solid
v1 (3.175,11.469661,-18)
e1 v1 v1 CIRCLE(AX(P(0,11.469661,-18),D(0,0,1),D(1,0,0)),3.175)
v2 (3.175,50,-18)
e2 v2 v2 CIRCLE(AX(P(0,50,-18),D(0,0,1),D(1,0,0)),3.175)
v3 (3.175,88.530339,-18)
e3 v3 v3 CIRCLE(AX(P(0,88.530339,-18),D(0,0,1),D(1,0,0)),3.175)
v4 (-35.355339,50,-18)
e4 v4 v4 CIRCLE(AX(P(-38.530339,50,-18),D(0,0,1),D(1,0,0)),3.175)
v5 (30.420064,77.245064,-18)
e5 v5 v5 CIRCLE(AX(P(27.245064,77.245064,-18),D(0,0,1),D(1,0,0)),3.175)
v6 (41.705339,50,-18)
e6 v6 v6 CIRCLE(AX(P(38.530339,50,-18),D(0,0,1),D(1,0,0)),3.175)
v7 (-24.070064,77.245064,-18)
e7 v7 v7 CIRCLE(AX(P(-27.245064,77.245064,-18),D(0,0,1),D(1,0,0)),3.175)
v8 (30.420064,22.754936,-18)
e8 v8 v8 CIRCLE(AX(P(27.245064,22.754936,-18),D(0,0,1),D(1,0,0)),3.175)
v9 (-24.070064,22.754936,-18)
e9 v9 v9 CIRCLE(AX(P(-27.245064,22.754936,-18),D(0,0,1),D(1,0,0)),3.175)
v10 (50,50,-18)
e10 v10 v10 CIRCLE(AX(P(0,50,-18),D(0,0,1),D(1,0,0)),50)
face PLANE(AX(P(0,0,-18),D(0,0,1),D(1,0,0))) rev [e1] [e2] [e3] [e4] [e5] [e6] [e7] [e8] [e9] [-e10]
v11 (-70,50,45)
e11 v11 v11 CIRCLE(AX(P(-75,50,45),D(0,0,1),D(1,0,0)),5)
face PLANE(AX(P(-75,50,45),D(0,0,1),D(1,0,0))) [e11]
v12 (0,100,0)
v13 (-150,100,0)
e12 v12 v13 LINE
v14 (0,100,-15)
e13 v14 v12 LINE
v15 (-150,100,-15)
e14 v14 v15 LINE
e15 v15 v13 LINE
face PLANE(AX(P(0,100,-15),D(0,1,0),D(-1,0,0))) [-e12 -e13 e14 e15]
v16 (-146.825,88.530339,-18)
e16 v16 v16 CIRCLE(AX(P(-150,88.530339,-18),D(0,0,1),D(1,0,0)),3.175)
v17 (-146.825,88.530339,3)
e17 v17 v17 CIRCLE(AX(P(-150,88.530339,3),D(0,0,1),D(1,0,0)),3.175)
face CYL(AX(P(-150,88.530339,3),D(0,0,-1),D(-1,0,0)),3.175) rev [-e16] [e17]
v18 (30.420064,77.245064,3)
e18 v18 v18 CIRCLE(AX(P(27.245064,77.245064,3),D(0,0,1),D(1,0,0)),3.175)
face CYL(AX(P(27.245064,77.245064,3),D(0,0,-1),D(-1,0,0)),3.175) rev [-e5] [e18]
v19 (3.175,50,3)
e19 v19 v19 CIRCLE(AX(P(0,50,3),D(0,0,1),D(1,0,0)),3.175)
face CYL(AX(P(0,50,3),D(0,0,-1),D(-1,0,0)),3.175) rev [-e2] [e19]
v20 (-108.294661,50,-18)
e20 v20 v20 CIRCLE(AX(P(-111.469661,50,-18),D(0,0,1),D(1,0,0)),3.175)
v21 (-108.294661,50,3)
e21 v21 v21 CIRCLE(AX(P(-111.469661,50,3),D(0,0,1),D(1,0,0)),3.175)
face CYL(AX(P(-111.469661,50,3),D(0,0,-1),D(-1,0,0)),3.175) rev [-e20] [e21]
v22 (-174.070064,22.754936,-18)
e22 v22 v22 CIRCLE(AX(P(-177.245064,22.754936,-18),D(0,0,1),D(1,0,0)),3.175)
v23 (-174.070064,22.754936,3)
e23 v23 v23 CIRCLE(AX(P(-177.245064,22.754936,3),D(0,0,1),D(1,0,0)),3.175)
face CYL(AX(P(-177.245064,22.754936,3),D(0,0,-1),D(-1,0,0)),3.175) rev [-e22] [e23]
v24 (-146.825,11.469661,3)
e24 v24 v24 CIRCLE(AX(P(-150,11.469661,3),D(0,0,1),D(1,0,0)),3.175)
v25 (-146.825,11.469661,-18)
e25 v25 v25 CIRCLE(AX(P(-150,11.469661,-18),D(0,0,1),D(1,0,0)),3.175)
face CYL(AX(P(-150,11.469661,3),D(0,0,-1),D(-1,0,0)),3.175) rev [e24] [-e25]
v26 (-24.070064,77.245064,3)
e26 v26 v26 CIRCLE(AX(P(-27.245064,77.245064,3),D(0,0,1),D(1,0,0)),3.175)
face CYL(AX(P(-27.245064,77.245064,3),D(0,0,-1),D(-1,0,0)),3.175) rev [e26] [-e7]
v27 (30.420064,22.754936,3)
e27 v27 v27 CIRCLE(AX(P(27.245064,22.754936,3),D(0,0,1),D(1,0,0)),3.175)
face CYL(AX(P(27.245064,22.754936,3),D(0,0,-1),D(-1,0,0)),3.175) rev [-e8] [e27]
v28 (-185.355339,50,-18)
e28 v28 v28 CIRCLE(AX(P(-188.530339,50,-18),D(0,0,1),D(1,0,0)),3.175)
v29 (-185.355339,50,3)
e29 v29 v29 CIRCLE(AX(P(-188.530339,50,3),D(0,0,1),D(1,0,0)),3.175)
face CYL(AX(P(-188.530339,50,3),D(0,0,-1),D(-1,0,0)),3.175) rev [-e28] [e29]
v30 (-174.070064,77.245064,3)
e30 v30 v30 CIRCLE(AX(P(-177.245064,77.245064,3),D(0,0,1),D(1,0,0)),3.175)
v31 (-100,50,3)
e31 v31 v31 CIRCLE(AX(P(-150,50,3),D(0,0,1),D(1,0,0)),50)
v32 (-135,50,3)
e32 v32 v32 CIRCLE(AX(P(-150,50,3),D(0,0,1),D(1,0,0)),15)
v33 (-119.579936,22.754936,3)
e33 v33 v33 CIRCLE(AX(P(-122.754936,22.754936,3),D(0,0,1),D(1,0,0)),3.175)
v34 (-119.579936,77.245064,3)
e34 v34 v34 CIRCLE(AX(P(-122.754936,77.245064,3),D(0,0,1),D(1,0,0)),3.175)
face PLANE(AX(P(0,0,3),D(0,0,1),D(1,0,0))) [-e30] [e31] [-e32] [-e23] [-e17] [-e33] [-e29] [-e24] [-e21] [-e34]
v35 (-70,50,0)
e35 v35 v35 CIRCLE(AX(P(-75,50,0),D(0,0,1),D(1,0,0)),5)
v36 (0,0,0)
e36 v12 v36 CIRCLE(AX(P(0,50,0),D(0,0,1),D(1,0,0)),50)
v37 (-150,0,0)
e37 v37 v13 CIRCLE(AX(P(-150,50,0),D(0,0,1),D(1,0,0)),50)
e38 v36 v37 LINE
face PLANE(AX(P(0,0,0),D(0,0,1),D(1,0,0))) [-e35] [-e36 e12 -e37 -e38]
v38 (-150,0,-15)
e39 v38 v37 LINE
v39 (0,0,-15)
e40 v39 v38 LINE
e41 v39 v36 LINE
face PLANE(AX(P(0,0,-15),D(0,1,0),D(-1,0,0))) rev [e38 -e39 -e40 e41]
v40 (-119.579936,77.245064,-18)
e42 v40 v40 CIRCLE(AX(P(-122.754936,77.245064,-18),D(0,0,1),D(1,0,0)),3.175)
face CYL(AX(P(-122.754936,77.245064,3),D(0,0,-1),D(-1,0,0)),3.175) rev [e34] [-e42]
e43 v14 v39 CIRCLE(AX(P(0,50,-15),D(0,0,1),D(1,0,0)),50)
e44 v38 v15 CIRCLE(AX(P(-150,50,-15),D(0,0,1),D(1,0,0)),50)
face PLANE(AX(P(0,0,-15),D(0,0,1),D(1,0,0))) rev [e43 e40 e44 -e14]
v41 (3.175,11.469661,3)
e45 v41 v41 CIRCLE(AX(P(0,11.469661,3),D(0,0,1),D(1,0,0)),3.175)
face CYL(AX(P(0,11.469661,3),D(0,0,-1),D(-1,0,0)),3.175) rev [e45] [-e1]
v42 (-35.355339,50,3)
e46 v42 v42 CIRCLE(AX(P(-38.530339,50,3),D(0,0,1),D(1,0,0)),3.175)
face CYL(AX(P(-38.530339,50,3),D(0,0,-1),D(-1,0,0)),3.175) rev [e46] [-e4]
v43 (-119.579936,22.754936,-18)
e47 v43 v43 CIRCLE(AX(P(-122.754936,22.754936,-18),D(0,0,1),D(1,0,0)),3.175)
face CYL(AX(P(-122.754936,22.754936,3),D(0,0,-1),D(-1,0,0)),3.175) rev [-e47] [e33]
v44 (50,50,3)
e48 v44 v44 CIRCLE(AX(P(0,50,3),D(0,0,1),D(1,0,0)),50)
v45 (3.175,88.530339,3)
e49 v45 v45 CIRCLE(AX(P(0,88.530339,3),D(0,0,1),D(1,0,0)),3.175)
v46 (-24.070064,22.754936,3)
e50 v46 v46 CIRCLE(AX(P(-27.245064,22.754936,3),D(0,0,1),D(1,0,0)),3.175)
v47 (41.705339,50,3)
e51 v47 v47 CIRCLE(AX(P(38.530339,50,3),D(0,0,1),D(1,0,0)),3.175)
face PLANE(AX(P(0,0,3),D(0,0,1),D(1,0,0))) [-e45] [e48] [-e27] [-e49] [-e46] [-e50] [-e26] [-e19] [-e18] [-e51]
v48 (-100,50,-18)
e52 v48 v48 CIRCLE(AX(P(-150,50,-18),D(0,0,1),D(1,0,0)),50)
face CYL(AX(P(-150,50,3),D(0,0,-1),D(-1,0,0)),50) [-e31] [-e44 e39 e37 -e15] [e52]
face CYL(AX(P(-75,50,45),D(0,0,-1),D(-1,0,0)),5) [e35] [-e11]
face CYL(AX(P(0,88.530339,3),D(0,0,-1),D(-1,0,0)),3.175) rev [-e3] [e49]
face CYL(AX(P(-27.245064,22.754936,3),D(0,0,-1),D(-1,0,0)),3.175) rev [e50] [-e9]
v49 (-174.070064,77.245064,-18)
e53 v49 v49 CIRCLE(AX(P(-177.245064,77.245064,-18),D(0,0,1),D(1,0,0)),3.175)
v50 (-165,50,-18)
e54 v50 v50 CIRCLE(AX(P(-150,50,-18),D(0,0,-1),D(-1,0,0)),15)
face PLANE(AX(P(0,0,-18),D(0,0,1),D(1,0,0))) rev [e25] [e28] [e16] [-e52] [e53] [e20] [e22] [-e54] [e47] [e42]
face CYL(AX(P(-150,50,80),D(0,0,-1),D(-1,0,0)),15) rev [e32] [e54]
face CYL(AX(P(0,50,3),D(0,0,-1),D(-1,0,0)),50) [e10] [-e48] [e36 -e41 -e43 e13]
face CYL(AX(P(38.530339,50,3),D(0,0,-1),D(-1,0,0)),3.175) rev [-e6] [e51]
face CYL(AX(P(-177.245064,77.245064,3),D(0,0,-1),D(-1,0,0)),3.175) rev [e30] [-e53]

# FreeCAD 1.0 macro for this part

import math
import FreeCAD as App
import Part
import Sketcher


def add_polygon(sketch, points):
    """Adds a closed chain of lines whose ends are joined by coincident constraints."""
    first, n = sketch.GeometryCount, len(points)
    for a, b in zip(points, points[1:] + points[:1]):
        sketch.addGeometry(Part.LineSegment(App.Vector(*a, 0), App.Vector(*b, 0)), False)
    for i in range(n):
        sketch.addConstraint(Sketcher.Constraint("Coincident", first + i, 2, first + (i + 1) % n, 1))

doc = App.newDocument("Part")
body = doc.addObject("PartDesign::Body", "Body")

sketch1 = doc.addObject("Sketcher::SketchObject", "Sketch")
body.addObject(sketch1)
sketch1.AttachmentSupport = (doc.XY_Plane, [""])
sketch1.MapMode = "FlatFace"
add_polygon(sketch1, [(-150, 100), (-150, 0), (0, 0), (0, 100)])
sketch1.addConstraint([
    Sketcher.Constraint("Vertical", 0),
    Sketcher.Constraint("Horizontal", 1),
    Sketcher.Constraint("Vertical", 2),
    Sketcher.Constraint("Horizontal", 3),
    Sketcher.Constraint("Coincident", 1, 2, -1, 1),
    Sketcher.Constraint("DistanceX", 1, 1, 1, 2, 150.0),
    Sketcher.Constraint("DistanceY", 0, 2, 0, 1, 100.0),
])
pad1 = doc.addObject("PartDesign::Pad", "Pad")
body.addObject(pad1)
pad1.Profile = sketch1
pad1.Length = 15
pad1.Reversed = True

sketch2 = doc.addObject("Sketcher::SketchObject", "Sketch001")
body.addObject(sketch2)
sketch2.AttachmentSupport = (doc.XY_Plane, [""])
sketch2.MapMode = "FlatFace"
sketch2.addGeometry(Part.Circle(App.Vector(-75, 50, 0), App.Vector(0, 0, 1), 5), False)
sketch2.addConstraint([
    Sketcher.Constraint("Diameter", 0, 10.0),
    Sketcher.Constraint("DistanceX", 0, 3, -1, 1, 75.0),
    Sketcher.Constraint("DistanceY", -1, 1, 0, 3, 50.0),
])
pad2 = doc.addObject("PartDesign::Pad", "Pad001")
body.addObject(pad2)
pad2.Profile = sketch2
pad2.Length = 45

sketch3 = doc.addObject("Sketcher::SketchObject", "Sketch002")
body.addObject(sketch3)
sketch3.AttachmentSupport = (doc.XY_Plane, [""])
sketch3.MapMode = "FlatFace"
sketch3.addGeometry([
    Part.Circle(App.Vector(0, 50, 0), App.Vector(0, 0, 1), 50),
    Part.Circle(App.Vector(-27.2, 22.8, 0), App.Vector(0, 0, 1), 3.2),
    Part.Circle(App.Vector(0, 11.5, 0), App.Vector(0, 0, 1), 3.2),
    Part.Circle(App.Vector(27.2, 22.8, 0), App.Vector(0, 0, 1), 3.2),
    Part.Circle(App.Vector(-38.5, 50, 0), App.Vector(0, 0, 1), 3.2),
    Part.Circle(App.Vector(-27.2, 77.2, 0), App.Vector(0, 0, 1), 3.2),
    Part.ArcOfCircle(Part.Circle(App.Vector(0, 50, 0), App.Vector(0, 0, 1), 25), math.radians(-90), math.radians(180)),
    Part.LineSegment(App.Vector(0, 25, 0), App.Vector(0, 46.8, 0)),
    Part.ArcOfCircle(Part.Circle(App.Vector(0, 50, 0), App.Vector(0, 0, 1), 3.2), math.radians(-180), math.radians(-90)),
    Part.LineSegment(App.Vector(-3.2, 50, 0), App.Vector(-25, 50, 0)),
    Part.Circle(App.Vector(38.5, 50, 0), App.Vector(0, 0, 1), 3.2),
    Part.Circle(App.Vector(0, 88.5, 0), App.Vector(0, 0, 1), 3.2),
    Part.Circle(App.Vector(27.2, 77.2, 0), App.Vector(0, 0, 1), 3.2),
], False)
sketch3.addConstraint([
    Sketcher.Constraint("Coincident", 6, 1, 7, 1),
    Sketcher.Constraint("Coincident", 7, 2, 8, 2),
    Sketcher.Constraint("Coincident", 8, 1, 9, 1),
    Sketcher.Constraint("Coincident", 9, 2, 6, 2),
    Sketcher.Constraint("Vertical", 7),
    Sketcher.Constraint("Horizontal", 9),
    Sketcher.Constraint("Coincident", 6, 3, 0, 3),
    Sketcher.Constraint("Coincident", 8, 3, 0, 3),
    Sketcher.Constraint("Equal", 1, 2),
    Sketcher.Constraint("Equal", 2, 3),
    Sketcher.Constraint("Equal", 3, 4),
    Sketcher.Constraint("Equal", 4, 5),
    Sketcher.Constraint("Equal", 5, 8),
    Sketcher.Constraint("Equal", 8, 10),
    Sketcher.Constraint("Equal", 10, 11),
    Sketcher.Constraint("Equal", 11, 12),
    Sketcher.Constraint("Symmetric", 1, 3, 3, 3, -2),
    Sketcher.Constraint("Symmetric", 4, 3, 10, 3, -2),
    Sketcher.Constraint("Symmetric", 5, 3, 12, 3, -2),
    Sketcher.Constraint("PointOnObject", 0, 3, -2),
    Sketcher.Constraint("PointOnObject", 2, 3, -2),
    Sketcher.Constraint("PointOnObject", 11, 3, -2),
    Sketcher.Constraint("PointOnObject", 6, 1, -2),
    Sketcher.Constraint("Horizontal", 0, 3, 4, 3),
    Sketcher.Constraint("Horizontal", 10, 3, 8, 1),
    Sketcher.Constraint("Vertical", 1, 3, 5, 3),
    Sketcher.Constraint("Diameter", 0, 100.0),
    Sketcher.Constraint("Radius", 6, 25.0),
    Sketcher.Constraint("Diameter", 1, 6.35),
    Sketcher.Constraint("DistanceY", -1, 1, 0, 3, 50.0),
    Sketcher.Constraint("DistanceY", -1, 1, 2, 3, 11.469661),
    Sketcher.Constraint("DistanceX", 4, 3, -1, 1, 38.530339),
    Sketcher.Constraint("DistanceY", -1, 1, 11, 3, 88.530339),
    Sketcher.Constraint("DistanceX", 1, 3, 3, 3, 54.490128),
    Sketcher.Constraint("DistanceY", 1, 3, 5, 3, 54.490128),
    Sketcher.Constraint("DistanceY", -1, 1, 1, 3, 22.754936),
])
pad3 = doc.addObject("PartDesign::Pad", "Pad002")
body.addObject(pad3)
pad3.Profile = sketch3
pad3.Length = 3

sketch4 = doc.addObject("Sketcher::SketchObject", "Sketch003")
body.addObject(sketch4)
sketch4.AttachmentSupport = (doc.XY_Plane, [""])
sketch4.MapMode = "FlatFace"
sketch4.addGeometry([
    Part.Circle(App.Vector(0, 50, 0), App.Vector(0, 0, 1), 50),
    Part.Circle(App.Vector(-150, 50, 0), App.Vector(0, 0, 1), 50),
], False)
sketch4.addConstraint([
    Sketcher.Constraint("Equal", 0, 1),
    Sketcher.Constraint("PointOnObject", 0, 3, -2),
    Sketcher.Constraint("Horizontal", 0, 3, 1, 3),
    Sketcher.Constraint("Diameter", 0, 100.0),
    Sketcher.Constraint("DistanceY", -1, 1, 0, 3, 50.0),
    Sketcher.Constraint("DistanceX", 1, 3, -1, 1, 150.0),
])
pocket1 = doc.addObject("PartDesign::Pocket", "Pocket")
body.addObject(pocket1)
pocket1.Profile = sketch4
pocket1.Type = "ThroughAll"
pocket1.Midplane = True

sketch5 = doc.addObject("Sketcher::SketchObject", "Sketch004")
body.addObject(sketch5)
sketch5.AttachmentSupport = (doc.XY_Plane, [""])
sketch5.MapMode = "FlatFace"
sketch5.addGeometry([
    Part.Circle(App.Vector(0, 50, 0), App.Vector(0, 0, 1), 50),
    Part.Circle(App.Vector(-27.2, 22.8, 0), App.Vector(0, 0, 1), 3.2),
    Part.Circle(App.Vector(0, 11.5, 0), App.Vector(0, 0, 1), 3.2),
    Part.Circle(App.Vector(27.2, 22.8, 0), App.Vector(0, 0, 1), 3.2),
    Part.Circle(App.Vector(-38.5, 50, 0), App.Vector(0, 0, 1), 3.2),
    Part.Circle(App.Vector(-27.2, 77.2, 0), App.Vector(0, 0, 1), 3.2),
    Part.Circle(App.Vector(0, 50, 0), App.Vector(0, 0, 1), 3.2),
    Part.Circle(App.Vector(38.5, 50, 0), App.Vector(0, 0, 1), 3.2),
    Part.Circle(App.Vector(0, 88.5, 0), App.Vector(0, 0, 1), 3.2),
    Part.Circle(App.Vector(27.2, 77.2, 0), App.Vector(0, 0, 1), 3.2),
    Part.Circle(App.Vector(-150, 50, 0), App.Vector(0, 0, 1), 50),
    Part.Circle(App.Vector(-177.2, 22.8, 0), App.Vector(0, 0, 1), 3.2),
    Part.Circle(App.Vector(-150, 11.5, 0), App.Vector(0, 0, 1), 3.2),
    Part.Circle(App.Vector(-122.8, 22.8, 0), App.Vector(0, 0, 1), 3.2),
    Part.Circle(App.Vector(-188.5, 50, 0), App.Vector(0, 0, 1), 3.2),
    Part.Circle(App.Vector(-177.2, 77.2, 0), App.Vector(0, 0, 1), 3.2),
    Part.Circle(App.Vector(-150, 50, 0), App.Vector(0, 0, 1), 3.2),
    Part.Circle(App.Vector(-111.5, 50, 0), App.Vector(0, 0, 1), 3.2),
    Part.Circle(App.Vector(-150, 88.5, 0), App.Vector(0, 0, 1), 3.2),
    Part.Circle(App.Vector(-122.8, 77.2, 0), App.Vector(0, 0, 1), 3.2),
], False)
sketch5.addConstraint([
    Sketcher.Constraint("Coincident", 6, 3, 0, 3),
    Sketcher.Constraint("Coincident", 16, 3, 10, 3),
    Sketcher.Constraint("Equal", 1, 2),
    Sketcher.Constraint("Equal", 2, 3),
    Sketcher.Constraint("Equal", 3, 4),
    Sketcher.Constraint("Equal", 4, 5),
    Sketcher.Constraint("Equal", 5, 6),
    Sketcher.Constraint("Equal", 6, 7),
    Sketcher.Constraint("Equal", 7, 8),
    Sketcher.Constraint("Equal", 8, 9),
    Sketcher.Constraint("Equal", 0, 10),
    Sketcher.Constraint("Equal", 9, 11),
    Sketcher.Constraint("Equal", 11, 12),
    Sketcher.Constraint("Equal", 12, 13),
    Sketcher.Constraint("Equal", 13, 14),
    Sketcher.Constraint("Equal", 14, 15),
    Sketcher.Constraint("Equal", 15, 16),
    Sketcher.Constraint("Equal", 16, 17),
    Sketcher.Constraint("Equal", 17, 18),
    Sketcher.Constraint("Equal", 18, 19),
    Sketcher.Constraint("Symmetric", 1, 3, 3, 3, -2),
    Sketcher.Constraint("Symmetric", 4, 3, 7, 3, -2),
    Sketcher.Constraint("Symmetric", 5, 3, 9, 3, -2),
    Sketcher.Constraint("PointOnObject", 0, 3, -2),
    Sketcher.Constraint("PointOnObject", 2, 3, -2),
    Sketcher.Constraint("PointOnObject", 8, 3, -2),
    Sketcher.Constraint("Horizontal", 0, 3, 4, 3),
    Sketcher.Constraint("Horizontal", 7, 3, 10, 3),
    Sketcher.Constraint("Horizontal", 3, 3, 11, 3),
    Sketcher.Constraint("Horizontal", 2, 3, 12, 3),
    Sketcher.Constraint("Horizontal", 11, 3, 13, 3),
    Sketcher.Constraint("Horizontal", 10, 3, 14, 3),
    Sketcher.Constraint("Horizontal", 9, 3, 15, 3),
    Sketcher.Constraint("Horizontal", 16, 3, 17, 3),
    Sketcher.Constraint("Horizontal", 8, 3, 18, 3),
    Sketcher.Constraint("Horizontal", 15, 3, 19, 3),
    Sketcher.Constraint("Vertical", 1, 3, 5, 3),
    Sketcher.Constraint("Vertical", 10, 3, 12, 3),
    Sketcher.Constraint("Vertical", 11, 3, 15, 3),
    Sketcher.Constraint("Vertical", 16, 3, 18, 3),
    Sketcher.Constraint("Vertical", 13, 3, 19, 3),
    Sketcher.Constraint("Diameter", 0, 100.0),
    Sketcher.Constraint("Diameter", 1, 6.35),
    Sketcher.Constraint("DistanceY", -1, 1, 0, 3, 50.0),
    Sketcher.Constraint("DistanceX", 10, 3, -1, 1, 150.0),
    Sketcher.Constraint("DistanceX", 11, 3, 1, 3, 150.0),
    Sketcher.Constraint("DistanceX", 14, 3, 4, 3, 150.0),
    Sketcher.Constraint("DistanceY", -1, 1, 2, 3, 11.469661),
    Sketcher.Constraint("DistanceX", 4, 3, -1, 1, 38.530339),
    Sketcher.Constraint("DistanceY", -1, 1, 8, 3, 88.530339),
    Sketcher.Constraint("DistanceX", 17, 3, -1, 1, 111.469661),
    Sketcher.Constraint("DistanceX", 1, 3, 3, 3, 54.490128),
    Sketcher.Constraint("DistanceY", 1, 3, 5, 3, 54.490128),
    Sketcher.Constraint("DistanceX", 11, 3, 13, 3, 54.490128),
    Sketcher.Constraint("DistanceY", -1, 1, 1, 3, 22.754936),
])
pad4 = doc.addObject("PartDesign::Pad", "Pad003")
body.addObject(pad4)
pad4.Profile = sketch5
pad4.Type = "TwoLengths"
pad4.Length = 3
pad4.Length2 = 18

sketch6 = doc.addObject("Sketcher::SketchObject", "Sketch005")
body.addObject(sketch6)
sketch6.AttachmentSupport = (doc.XY_Plane, [""])
sketch6.MapMode = "FlatFace"
sketch6.AttachmentOffset = App.Placement(App.Vector(0, 0, -18), App.Rotation())
sketch6.addGeometry(Part.Circle(App.Vector(-150, 50, 0), App.Vector(0, 0, 1), 15), False)
sketch6.addConstraint([
    Sketcher.Constraint("Diameter", 0, 30.0),
    Sketcher.Constraint("DistanceX", 0, 3, -1, 1, 150.0),
    Sketcher.Constraint("DistanceY", -1, 1, 0, 3, 50.0),
])
pocket2 = doc.addObject("PartDesign::Pocket", "Pocket001")
body.addObject(pocket2)
pocket2.Profile = sketch6
pocket2.Length = 98
pocket2.Reversed = True

doc.recompute()
